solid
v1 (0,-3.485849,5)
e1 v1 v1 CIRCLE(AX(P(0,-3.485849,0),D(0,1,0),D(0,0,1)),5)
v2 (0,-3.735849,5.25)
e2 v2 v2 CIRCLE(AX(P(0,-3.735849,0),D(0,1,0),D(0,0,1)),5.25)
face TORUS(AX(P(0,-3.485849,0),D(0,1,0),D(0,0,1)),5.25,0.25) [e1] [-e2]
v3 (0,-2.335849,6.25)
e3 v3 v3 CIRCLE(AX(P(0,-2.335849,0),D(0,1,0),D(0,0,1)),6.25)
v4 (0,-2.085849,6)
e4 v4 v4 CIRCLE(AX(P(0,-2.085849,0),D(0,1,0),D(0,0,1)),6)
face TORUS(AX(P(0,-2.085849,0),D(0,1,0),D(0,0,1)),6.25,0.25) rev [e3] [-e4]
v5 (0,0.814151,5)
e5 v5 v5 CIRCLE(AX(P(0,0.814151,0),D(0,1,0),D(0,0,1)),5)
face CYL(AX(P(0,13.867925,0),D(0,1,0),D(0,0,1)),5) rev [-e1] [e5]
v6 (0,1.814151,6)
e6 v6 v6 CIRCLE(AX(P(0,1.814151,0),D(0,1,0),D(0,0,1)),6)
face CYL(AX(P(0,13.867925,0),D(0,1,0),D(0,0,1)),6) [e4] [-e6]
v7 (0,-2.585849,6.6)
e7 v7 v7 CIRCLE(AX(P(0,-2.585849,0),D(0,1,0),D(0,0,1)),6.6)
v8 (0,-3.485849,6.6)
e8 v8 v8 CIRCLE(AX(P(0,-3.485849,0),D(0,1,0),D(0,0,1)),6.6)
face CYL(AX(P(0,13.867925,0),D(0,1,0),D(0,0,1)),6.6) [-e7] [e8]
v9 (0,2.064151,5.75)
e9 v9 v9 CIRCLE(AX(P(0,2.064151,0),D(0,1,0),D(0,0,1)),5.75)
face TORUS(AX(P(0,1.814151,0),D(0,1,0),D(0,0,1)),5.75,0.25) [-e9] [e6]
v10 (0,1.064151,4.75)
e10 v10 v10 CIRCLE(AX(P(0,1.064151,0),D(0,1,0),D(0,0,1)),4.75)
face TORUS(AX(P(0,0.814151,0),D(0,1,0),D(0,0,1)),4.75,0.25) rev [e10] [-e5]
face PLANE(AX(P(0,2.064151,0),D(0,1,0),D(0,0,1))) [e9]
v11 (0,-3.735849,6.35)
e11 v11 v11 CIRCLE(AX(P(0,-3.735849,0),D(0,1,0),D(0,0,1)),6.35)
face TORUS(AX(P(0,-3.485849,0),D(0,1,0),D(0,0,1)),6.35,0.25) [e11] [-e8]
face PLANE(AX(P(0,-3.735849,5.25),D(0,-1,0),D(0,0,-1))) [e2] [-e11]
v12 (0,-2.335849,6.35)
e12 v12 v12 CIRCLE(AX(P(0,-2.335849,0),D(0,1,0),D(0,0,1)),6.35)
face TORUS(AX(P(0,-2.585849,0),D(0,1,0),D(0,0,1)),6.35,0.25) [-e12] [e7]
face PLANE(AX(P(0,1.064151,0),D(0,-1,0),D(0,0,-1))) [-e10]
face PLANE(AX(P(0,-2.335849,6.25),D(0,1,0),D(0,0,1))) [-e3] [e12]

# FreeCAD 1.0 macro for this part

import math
import FreeCAD as App
import Part
import Sketcher

V = App.Vector

doc = App.newDocument("Part")
body = doc.addObject("PartDesign::Body", "Body")

# Sketch on YZ plane
sketch1 = body.newObject("Sketcher::SketchObject", "Sketch")
sketch1.AttachmentSupport = (doc.getObject("YZ_Plane"), [""])
sketch1.MapMode = "FlatFace"
sketch1.addGeometry([
    Part.LineSegment(V(2.06, 0, 0), V(2.06, 5.75, 0)),  # 0
    Part.ArcOfCircle(Part.Circle(V(1.81, 5.75, 0), V(0, 0, 1), 0.25), math.radians(0), math.radians(90)),  # 1
    Part.LineSegment(V(1.81, 6, 0), V(-2.09, 6, 0)),  # 2
    Part.ArcOfCircle(Part.Circle(V(-2.09, 6.25, 0), V(0, 0, 1), 0.25), math.radians(-180), math.radians(-90)),  # 3
    Part.LineSegment(V(-2.34, 6.25, 0), V(-2.34, 6.35, 0)),  # 4
    Part.ArcOfCircle(Part.Circle(V(-2.59, 6.35, 0), V(0, 0, 1), 0.25), math.radians(0), math.radians(90)),  # 5
    Part.LineSegment(V(-2.59, 6.6, 0), V(-3.49, 6.6, 0)),  # 6
    Part.ArcOfCircle(Part.Circle(V(-3.49, 6.35, 0), V(0, 0, 1), 0.25), math.radians(90), math.radians(180)),  # 7
    Part.LineSegment(V(-3.74, 6.35, 0), V(-3.74, 5.25, 0)),  # 8
    Part.ArcOfCircle(Part.Circle(V(-3.49, 5.25, 0), V(0, 0, 1), 0.25), math.radians(-180), math.radians(-90)),  # 9
    Part.LineSegment(V(-3.49, 5, 0), V(0.81, 5, 0)),  # 10
    Part.ArcOfCircle(Part.Circle(V(0.81, 4.75, 0), V(0, 0, 1), 0.25), math.radians(0), math.radians(90)),  # 11
    Part.LineSegment(V(1.06, 4.75, 0), V(1.06, 0, 0)),  # 12
    Part.LineSegment(V(1.06, 0, 0), V(2.06, 0, 0)),  # 13
], False)
sketch1.addConstraint([
    Sketcher.Constraint("Tangent", 0, 2, 1, 1),
    Sketcher.Constraint("Tangent", 1, 2, 2, 1),
    Sketcher.Constraint("Tangent", 2, 2, 3, 2),
    Sketcher.Constraint("Tangent", 3, 1, 4, 1),
    Sketcher.Constraint("Tangent", 4, 2, 5, 1),
    Sketcher.Constraint("Tangent", 5, 2, 6, 1),
    Sketcher.Constraint("Tangent", 6, 2, 7, 1),
    Sketcher.Constraint("Tangent", 7, 2, 8, 1),
    Sketcher.Constraint("Tangent", 8, 2, 9, 1),
    Sketcher.Constraint("Tangent", 9, 2, 10, 1),
    Sketcher.Constraint("Tangent", 10, 2, 11, 2),
    Sketcher.Constraint("Tangent", 11, 1, 12, 1),
    Sketcher.Constraint("Coincident", 12, 2, 13, 1),
    Sketcher.Constraint("Coincident", 13, 2, 0, 1),
    Sketcher.Constraint("Vertical", 0),
    Sketcher.Constraint("Horizontal", 2),
    Sketcher.Constraint("Vertical", 4),
    Sketcher.Constraint("Horizontal", 6),
    Sketcher.Constraint("Vertical", 8),
    Sketcher.Constraint("Horizontal", 10),
    Sketcher.Constraint("Vertical", 12),
    Sketcher.Constraint("Horizontal", 13),
    Sketcher.Constraint("Equal", 1, 3),
    Sketcher.Constraint("Equal", 3, 5),
    Sketcher.Constraint("Equal", 5, 7),
    Sketcher.Constraint("Equal", 7, 9),
    Sketcher.Constraint("Equal", 9, 11),
    Sketcher.Constraint("PointOnObject", 12, 2, -1),
    Sketcher.Constraint("DistanceX", 13, 1, 13, 2, 1.0),
    Sketcher.Constraint("Radius", 1, 0.25),
    Sketcher.Constraint("DistanceX", 2, 2, 2, 1, 3.9),
    Sketcher.Constraint("DistanceX", 6, 2, 6, 1, 0.9),
    Sketcher.Constraint("DistanceY", 4, 1, 4, 2, 0.1),
    Sketcher.Constraint("DistanceY", 8, 2, 8, 1, 1.1),
    Sketcher.Constraint("DistanceY", -1, 1, 1, 2, 6.0),
    Sketcher.Constraint("DistanceX", -1, 1, 1, 3, 1.814151),
])
revolution = body.newObject("PartDesign::Revolution", "Revolution")
revolution.Profile = sketch1
revolution.ReferenceAxis = (sketch1, ["H_Axis"])
revolution.Angle = 360

doc.recompute()
